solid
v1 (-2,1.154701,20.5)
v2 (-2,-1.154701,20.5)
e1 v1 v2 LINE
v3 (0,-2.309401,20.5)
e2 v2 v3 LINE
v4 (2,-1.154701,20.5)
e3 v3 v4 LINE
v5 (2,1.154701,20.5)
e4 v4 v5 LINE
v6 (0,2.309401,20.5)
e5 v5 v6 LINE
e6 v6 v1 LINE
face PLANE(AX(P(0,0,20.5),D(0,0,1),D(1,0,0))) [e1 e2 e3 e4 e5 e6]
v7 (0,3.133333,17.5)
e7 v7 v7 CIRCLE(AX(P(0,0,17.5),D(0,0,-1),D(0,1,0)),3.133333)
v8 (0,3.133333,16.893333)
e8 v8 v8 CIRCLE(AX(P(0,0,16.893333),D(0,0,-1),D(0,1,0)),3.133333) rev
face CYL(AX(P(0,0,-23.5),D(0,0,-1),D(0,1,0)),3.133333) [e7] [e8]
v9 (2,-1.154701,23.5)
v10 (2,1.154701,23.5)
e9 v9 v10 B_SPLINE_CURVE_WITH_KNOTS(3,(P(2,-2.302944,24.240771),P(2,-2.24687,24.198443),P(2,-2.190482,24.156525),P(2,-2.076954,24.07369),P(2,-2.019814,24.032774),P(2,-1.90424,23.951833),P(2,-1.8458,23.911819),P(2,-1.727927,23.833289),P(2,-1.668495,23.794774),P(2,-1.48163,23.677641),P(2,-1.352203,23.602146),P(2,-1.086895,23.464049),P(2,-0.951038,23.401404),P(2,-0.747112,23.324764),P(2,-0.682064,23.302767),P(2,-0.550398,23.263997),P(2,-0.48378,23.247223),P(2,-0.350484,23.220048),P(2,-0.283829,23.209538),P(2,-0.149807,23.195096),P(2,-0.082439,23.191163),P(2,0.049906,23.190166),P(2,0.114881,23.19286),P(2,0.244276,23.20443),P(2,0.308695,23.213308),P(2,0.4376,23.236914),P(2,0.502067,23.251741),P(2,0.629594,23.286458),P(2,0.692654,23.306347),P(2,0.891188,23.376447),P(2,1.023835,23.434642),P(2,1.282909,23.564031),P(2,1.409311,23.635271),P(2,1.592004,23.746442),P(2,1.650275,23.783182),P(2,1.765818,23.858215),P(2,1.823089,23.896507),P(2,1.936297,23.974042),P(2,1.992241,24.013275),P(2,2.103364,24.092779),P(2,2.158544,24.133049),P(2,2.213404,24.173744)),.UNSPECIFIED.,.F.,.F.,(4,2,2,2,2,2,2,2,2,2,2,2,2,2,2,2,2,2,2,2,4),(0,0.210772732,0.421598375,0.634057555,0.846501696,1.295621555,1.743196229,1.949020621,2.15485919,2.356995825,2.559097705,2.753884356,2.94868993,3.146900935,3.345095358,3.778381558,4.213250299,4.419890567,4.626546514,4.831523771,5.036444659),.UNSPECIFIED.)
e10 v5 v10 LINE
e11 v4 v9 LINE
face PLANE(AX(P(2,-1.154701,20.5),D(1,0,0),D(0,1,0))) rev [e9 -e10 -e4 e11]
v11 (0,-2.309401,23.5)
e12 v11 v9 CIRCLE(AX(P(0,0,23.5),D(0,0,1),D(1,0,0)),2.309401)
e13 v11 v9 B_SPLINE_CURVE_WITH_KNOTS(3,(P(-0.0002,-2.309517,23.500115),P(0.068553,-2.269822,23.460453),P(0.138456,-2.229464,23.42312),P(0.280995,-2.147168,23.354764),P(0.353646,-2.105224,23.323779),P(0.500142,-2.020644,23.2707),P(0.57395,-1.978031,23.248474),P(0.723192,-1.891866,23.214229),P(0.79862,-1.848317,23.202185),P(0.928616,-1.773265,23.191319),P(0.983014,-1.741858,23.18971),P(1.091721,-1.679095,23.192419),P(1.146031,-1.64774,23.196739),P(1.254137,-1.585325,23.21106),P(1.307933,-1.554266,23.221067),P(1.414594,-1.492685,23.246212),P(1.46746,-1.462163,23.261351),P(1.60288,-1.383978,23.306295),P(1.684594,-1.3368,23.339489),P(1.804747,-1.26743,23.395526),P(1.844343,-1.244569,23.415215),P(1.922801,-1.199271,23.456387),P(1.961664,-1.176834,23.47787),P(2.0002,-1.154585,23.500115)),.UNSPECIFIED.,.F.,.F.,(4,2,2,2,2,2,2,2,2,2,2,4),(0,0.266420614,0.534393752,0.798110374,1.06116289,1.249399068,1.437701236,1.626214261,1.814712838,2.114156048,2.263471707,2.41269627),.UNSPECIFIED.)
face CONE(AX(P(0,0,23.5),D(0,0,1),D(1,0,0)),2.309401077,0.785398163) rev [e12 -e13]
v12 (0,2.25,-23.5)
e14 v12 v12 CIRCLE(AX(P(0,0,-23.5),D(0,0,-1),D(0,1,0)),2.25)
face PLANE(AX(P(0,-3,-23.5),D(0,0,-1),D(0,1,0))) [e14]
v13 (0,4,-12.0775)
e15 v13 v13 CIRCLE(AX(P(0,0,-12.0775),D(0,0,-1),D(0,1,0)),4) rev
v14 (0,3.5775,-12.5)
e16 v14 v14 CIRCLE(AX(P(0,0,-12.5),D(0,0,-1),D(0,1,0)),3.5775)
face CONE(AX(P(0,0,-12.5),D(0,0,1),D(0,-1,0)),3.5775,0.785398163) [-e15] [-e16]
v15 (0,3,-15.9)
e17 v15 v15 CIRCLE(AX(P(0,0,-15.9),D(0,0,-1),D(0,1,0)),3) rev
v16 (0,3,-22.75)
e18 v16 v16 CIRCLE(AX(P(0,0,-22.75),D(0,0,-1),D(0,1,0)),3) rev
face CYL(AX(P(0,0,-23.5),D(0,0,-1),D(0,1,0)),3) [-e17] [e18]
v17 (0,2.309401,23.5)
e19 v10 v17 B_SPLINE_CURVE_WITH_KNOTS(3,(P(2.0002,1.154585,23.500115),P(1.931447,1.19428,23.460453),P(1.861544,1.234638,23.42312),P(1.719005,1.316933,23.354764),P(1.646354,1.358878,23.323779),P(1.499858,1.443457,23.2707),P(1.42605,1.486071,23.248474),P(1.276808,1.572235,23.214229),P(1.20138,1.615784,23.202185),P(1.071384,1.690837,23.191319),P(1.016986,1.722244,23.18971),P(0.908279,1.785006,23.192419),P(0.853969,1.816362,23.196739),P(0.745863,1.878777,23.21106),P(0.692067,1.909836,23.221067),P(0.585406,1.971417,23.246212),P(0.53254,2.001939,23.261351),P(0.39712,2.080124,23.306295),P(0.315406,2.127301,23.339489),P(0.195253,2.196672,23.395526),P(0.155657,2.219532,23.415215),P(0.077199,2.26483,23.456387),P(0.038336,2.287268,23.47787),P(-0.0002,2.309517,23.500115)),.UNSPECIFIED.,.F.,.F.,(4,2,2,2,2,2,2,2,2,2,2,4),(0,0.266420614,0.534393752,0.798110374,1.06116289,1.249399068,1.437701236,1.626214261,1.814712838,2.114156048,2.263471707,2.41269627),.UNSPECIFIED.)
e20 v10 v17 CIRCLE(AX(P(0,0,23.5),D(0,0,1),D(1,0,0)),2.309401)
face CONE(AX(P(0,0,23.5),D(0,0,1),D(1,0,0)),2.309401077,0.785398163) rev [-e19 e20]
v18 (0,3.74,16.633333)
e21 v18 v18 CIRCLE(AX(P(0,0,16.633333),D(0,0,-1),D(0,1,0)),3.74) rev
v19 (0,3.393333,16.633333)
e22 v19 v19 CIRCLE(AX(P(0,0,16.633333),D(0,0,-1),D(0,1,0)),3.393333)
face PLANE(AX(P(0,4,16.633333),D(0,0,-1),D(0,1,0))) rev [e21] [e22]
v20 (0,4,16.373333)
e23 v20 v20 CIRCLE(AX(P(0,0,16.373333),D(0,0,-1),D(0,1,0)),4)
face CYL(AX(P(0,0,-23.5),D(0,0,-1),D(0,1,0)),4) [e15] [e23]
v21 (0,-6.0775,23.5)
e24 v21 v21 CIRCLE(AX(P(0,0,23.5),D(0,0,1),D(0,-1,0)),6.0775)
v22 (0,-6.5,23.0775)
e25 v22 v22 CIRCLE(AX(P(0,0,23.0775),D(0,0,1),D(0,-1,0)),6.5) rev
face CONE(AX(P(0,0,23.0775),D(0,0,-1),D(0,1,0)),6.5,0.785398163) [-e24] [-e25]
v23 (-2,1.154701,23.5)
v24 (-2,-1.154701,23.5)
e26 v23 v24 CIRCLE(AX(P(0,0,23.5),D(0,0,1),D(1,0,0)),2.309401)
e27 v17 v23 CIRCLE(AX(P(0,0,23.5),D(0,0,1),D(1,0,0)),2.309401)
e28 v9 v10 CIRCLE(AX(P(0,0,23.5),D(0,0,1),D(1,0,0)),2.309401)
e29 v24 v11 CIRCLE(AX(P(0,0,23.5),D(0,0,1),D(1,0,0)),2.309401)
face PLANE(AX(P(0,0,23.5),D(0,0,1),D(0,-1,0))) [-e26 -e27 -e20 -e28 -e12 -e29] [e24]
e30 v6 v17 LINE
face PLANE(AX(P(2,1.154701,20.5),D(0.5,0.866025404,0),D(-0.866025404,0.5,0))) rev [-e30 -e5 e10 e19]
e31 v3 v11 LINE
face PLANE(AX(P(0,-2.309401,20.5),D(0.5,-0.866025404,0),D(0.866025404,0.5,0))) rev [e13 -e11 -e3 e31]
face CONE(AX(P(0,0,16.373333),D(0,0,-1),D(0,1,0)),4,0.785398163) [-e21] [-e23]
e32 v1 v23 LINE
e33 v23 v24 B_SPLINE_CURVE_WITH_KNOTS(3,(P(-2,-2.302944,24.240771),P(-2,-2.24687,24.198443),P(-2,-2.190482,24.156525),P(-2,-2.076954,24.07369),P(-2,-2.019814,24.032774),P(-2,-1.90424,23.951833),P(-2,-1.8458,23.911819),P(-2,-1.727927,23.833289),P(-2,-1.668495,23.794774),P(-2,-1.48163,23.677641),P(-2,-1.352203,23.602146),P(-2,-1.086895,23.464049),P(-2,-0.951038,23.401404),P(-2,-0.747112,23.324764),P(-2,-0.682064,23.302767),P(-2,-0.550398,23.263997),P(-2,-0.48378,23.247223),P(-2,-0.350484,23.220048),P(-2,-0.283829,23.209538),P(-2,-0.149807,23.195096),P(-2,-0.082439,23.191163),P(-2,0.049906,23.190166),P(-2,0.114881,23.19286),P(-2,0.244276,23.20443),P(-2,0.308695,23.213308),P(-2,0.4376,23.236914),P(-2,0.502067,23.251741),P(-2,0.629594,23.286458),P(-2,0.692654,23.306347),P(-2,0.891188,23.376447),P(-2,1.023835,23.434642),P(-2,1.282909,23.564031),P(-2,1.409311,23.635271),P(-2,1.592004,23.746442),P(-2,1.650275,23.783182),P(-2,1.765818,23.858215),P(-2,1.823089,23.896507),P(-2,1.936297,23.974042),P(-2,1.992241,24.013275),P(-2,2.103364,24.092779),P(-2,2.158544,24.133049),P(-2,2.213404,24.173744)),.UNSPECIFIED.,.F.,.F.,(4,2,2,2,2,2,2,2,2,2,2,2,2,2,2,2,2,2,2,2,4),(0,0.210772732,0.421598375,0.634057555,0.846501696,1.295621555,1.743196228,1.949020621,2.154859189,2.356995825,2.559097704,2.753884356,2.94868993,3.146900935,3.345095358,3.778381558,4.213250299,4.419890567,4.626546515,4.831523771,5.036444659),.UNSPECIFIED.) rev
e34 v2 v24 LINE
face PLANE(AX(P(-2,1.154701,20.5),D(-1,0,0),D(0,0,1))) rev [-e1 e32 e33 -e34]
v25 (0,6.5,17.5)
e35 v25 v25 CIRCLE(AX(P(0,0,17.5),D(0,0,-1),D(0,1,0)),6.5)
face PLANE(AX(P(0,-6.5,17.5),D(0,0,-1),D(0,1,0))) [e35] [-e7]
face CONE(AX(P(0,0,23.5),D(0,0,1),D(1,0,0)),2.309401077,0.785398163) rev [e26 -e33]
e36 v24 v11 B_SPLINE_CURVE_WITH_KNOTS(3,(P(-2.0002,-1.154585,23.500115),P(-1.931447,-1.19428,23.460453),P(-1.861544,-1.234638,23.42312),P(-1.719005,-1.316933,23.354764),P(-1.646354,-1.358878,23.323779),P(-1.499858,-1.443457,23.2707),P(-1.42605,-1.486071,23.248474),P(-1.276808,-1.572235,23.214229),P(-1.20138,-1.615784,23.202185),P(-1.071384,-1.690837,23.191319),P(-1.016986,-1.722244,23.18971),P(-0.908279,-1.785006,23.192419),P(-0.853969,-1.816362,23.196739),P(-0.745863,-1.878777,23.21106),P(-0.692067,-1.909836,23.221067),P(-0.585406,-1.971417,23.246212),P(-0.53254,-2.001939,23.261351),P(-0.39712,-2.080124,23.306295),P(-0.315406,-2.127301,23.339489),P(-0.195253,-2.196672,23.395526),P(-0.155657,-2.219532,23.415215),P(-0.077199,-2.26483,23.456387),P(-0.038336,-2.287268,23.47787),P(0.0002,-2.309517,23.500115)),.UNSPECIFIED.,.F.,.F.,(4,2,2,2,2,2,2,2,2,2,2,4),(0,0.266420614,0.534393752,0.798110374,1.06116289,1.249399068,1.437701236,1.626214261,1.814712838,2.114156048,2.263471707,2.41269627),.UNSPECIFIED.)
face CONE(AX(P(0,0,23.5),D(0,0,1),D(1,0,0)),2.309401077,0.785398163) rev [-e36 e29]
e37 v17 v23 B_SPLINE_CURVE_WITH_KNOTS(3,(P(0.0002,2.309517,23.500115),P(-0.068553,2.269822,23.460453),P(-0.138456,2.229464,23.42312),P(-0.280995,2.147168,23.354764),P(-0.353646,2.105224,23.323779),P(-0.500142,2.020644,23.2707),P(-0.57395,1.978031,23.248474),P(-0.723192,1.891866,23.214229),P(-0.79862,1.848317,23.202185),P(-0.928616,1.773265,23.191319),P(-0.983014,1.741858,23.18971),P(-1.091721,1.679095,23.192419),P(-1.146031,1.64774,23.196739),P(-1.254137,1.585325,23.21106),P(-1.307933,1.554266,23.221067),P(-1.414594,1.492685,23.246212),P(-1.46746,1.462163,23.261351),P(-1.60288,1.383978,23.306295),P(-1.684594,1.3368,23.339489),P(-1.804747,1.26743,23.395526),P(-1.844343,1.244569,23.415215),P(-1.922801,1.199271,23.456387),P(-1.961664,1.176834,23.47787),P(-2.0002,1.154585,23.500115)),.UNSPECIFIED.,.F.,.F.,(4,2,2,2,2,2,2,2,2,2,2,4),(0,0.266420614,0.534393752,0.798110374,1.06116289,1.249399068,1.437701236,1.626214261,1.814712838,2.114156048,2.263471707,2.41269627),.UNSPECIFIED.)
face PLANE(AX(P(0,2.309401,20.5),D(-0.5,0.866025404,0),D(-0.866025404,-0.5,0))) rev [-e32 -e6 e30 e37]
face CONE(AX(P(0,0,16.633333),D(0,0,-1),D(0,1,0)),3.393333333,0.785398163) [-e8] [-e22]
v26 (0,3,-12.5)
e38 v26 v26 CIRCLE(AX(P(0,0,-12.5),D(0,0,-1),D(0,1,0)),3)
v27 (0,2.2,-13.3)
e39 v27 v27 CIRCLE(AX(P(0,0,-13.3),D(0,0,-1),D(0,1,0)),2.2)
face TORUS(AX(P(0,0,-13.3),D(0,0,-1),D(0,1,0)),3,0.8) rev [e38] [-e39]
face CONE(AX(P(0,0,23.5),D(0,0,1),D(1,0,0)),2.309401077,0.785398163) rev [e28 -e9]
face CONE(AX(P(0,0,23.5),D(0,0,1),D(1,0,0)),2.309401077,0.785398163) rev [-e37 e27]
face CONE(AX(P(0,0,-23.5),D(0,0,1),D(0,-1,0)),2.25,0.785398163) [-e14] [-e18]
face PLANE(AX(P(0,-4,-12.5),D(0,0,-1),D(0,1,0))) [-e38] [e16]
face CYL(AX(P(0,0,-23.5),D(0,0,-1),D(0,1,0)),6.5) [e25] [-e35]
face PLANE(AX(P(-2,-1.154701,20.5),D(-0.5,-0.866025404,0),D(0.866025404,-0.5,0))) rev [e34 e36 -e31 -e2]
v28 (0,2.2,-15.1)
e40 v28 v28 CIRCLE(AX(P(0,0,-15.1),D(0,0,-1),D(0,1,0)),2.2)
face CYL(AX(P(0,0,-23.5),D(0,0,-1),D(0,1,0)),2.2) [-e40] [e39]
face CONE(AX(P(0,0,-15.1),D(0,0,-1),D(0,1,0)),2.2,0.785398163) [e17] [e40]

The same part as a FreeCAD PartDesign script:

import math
import FreeCAD as App
import Part
import Sketcher
Q = App.Units.Quantity


def edges_at(feature, points):
    """Names of the edges that pass closest to the given points."""
    edges = feature.Shape.Edges
    near = lambda p: min(range(len(edges)), key=lambda i: edges[i].distToShape(Part.Vertex(*p))[0])
    return sorted({f"Edge{near(p) + 1}" for p in points})

doc = App.newDocument("Part")
body = doc.addObject("PartDesign::Body", "Body")

sketch1 = body.newObject("Sketcher::SketchObject", "Sketch")
sketch1.AttachmentSupport = (doc.getObject("YZ_Plane"), [""])
sketch1.MapMode = "FlatFace"
sketch1.addGeometry([
    Part.LineSegment(App.Vector(6.5, 17.5, 0), App.Vector(6.5, 23.5, 0)),
    Part.LineSegment(App.Vector(6.5, 23.5, 0), App.Vector(0, 23.5, 0)),
    Part.LineSegment(App.Vector(0, 23.5, 0), App.Vector(0, -23.5, 0)),
    Part.LineSegment(App.Vector(0, -23.5, 0), App.Vector(3, -23.5, 0)),
    Part.LineSegment(App.Vector(3, -23.5, 0), App.Vector(3, -12.5, 0)),
    Part.LineSegment(App.Vector(3, -12.5, 0), App.Vector(4, -12.5, 0)),
    Part.LineSegment(App.Vector(4, -12.5, 0), App.Vector(4, 17.5, 0)),
    Part.LineSegment(App.Vector(4, 17.5, 0), App.Vector(6.5, 17.5, 0)),
], False)
sketch1.addConstraint([
    Sketcher.Constraint("Coincident", 0, 2, 1, 1),
    Sketcher.Constraint("Coincident", 1, 2, 2, 1),
    Sketcher.Constraint("Coincident", 2, 2, 3, 1),
    Sketcher.Constraint("Coincident", 3, 2, 4, 1),
    Sketcher.Constraint("Coincident", 4, 2, 5, 1),
    Sketcher.Constraint("Coincident", 5, 2, 6, 1),
    Sketcher.Constraint("Coincident", 6, 2, 7, 1),
    Sketcher.Constraint("Coincident", 7, 2, 0, 1),
    Sketcher.Constraint("Vertical", 0),
    Sketcher.Constraint("Horizontal", 1),
    Sketcher.Constraint("Vertical", 2),
    Sketcher.Constraint("Horizontal", 3),
    Sketcher.Constraint("Vertical", 4),
    Sketcher.Constraint("Horizontal", 5),
    Sketcher.Constraint("Vertical", 6),
    Sketcher.Constraint("Horizontal", 7),
    Sketcher.Constraint("Symmetric", 1, 2, 2, 2, -1, 1),
    Sketcher.Constraint("DistanceX", 3, 1, 3, 2, 3.0),
    Sketcher.Constraint("DistanceX", 5, 1, 5, 2, 1.0),
    Sketcher.Constraint("DistanceY", 0, 1, 0, 2, 6.0),
    Sketcher.Constraint("DistanceY", 2, 2, 2, 1, 47.0),
    Sketcher.Constraint("DistanceY", 4, 1, 4, 2, 11.0),
    Sketcher.Constraint("DistanceX", 1, 2, 1, 1, 6.5),
])
revolution = body.newObject("PartDesign::Revolution", "Revolution")
revolution.Profile = sketch1
revolution.ReferenceAxis = (sketch1, ["V_Axis"])
revolution.Angle = 360

sketch2 = body.newObject("Sketcher::SketchObject", "Sketch001")
sketch2.AttachmentSupport = (doc.getObject("YZ_Plane"), [""])
sketch2.MapMode = "FlatFace"
sketch2.addGeometry([
    Part.LineSegment(App.Vector(4, 17.5, 0), App.Vector(3.1, 17.5, 0)),
    Part.LineSegment(App.Vector(3.1, 17.5, 0), App.Vector(3.1, 16.6, 0)),
    Part.LineSegment(App.Vector(3.1, 16.6, 0), App.Vector(4, 16.6, 0)),
    Part.LineSegment(App.Vector(4, 16.6, 0), App.Vector(4, 17.5, 0)),
], False)
sketch2.addConstraint([
    Sketcher.Constraint("Coincident", 0, 2, 1, 1),
    Sketcher.Constraint("Coincident", 1, 2, 2, 1),
    Sketcher.Constraint("Coincident", 2, 2, 3, 1),
    Sketcher.Constraint("Coincident", 3, 2, 0, 1),
    Sketcher.Constraint("Horizontal", 0),
    Sketcher.Constraint("Vertical", 1),
    Sketcher.Constraint("Horizontal", 2),
    Sketcher.Constraint("Vertical", 3),
    Sketcher.Constraint("Equal", 2, 1),
    Sketcher.Constraint("DistanceX", -1, 1, 2, 2, 4.0),
    Sketcher.Constraint("DistanceY", -1, 1, 0, 2, 17.5),
    Sketcher.Constraint("DistanceX", 0, 2, 0, 1, 0.866667),
])
groove = body.newObject("PartDesign::Groove", "Groove")
groove.Profile = sketch2
groove.ReferenceAxis = (sketch2, ["V_Axis"])
groove.Angle = 360
doc.recompute()

chamfer = body.newObject("PartDesign::Chamfer", "Chamfer")
chamfer.Base = (groove, edges_at(groove, [(0, -3.133, 16.633), (0, -4, 16.633)]))
chamfer.Size = 0.26

sketch3 = body.newObject("Sketcher::SketchObject", "Sketch002")
sketch3.AttachmentSupport = (doc.getObject("YZ_Plane"), [""])
sketch3.MapMode = "FlatFace"
sketch3.addGeometry([
    Part.LineSegment(App.Vector(4, -16.9, 0), App.Vector(4, -12.5, 0)),
    Part.LineSegment(App.Vector(4, -12.5, 0), App.Vector(3, -12.5, 0)),
    Part.ArcOfCircle(Part.Circle(App.Vector(3, -13.3, 0), App.Vector(0, 0, 1), 0.8), math.radians(90), math.radians(180)),
    Part.LineSegment(App.Vector(2.2, -13.3, 0), App.Vector(2.2, -15.1, 0)),
    Part.LineSegment(App.Vector(2.2, -15.1, 0), App.Vector(4, -16.9, 0)),
], False)
sketch3.addConstraint([
    Sketcher.Constraint("Coincident", 0, 2, 1, 1),
    Sketcher.Constraint("Tangent", 1, 2, 2, 1),
    Sketcher.Constraint("Tangent", 2, 2, 3, 1),
    Sketcher.Constraint("Coincident", 3, 2, 4, 1),
    Sketcher.Constraint("Coincident", 4, 2, 0, 1),
    Sketcher.Constraint("Vertical", 0),
    Sketcher.Constraint("Horizontal", 1),
    Sketcher.Constraint("Vertical", 3),
    Sketcher.Constraint("Radius", 2, 0.8),
    Sketcher.Constraint("DistanceX", 1, 2, 1, 1, 1.0),
    Sketcher.Constraint("Angle", 4, Q("-45 deg")),
    Sketcher.Constraint("DistanceY", 0, 1, 0, 2, 4.4),
    Sketcher.Constraint("DistanceX", -1, 1, 2, 3, 3.0),
    Sketcher.Constraint("DistanceY", 2, 3, -1, 1, 13.3),
])
groove2 = body.newObject("PartDesign::Groove", "Groove001")
groove2.Profile = sketch3
groove2.ReferenceAxis = (sketch3, ["V_Axis"])
groove2.Angle = 360
doc.recompute()

chamfer2 = body.newObject("PartDesign::Chamfer", "Chamfer001")
chamfer2.Base = (groove2, edges_at(groove2, [(0, -3, -23.5)]))
chamfer2.Size = 0.75
doc.recompute()

chamfer3 = body.newObject("PartDesign::Chamfer", "Chamfer002")
chamfer3.Base = (chamfer2, edges_at(chamfer2, [(0, -4, -12.5), (0, -6.5, 23.5)]))
chamfer3.Size = 0.4225

sketch4 = body.newObject("Sketcher::SketchObject", "Sketch003")
sketch4.AttachmentSupport = (doc.getObject("XY_Plane"), [""])
sketch4.MapMode = "FlatFace"
sketch4.AttachmentOffset = App.Placement(App.Vector(0, 0, 23.5), App.Rotation())
sketch4.addGeometry([
    Part.LineSegment(App.Vector(2, 1.2, 0), App.Vector(0, 2.3, 0)),
    Part.LineSegment(App.Vector(0, 2.3, 0), App.Vector(-2, 1.2, 0)),
    Part.LineSegment(App.Vector(-2, 1.2, 0), App.Vector(-2, -1.2, 0)),
    Part.LineSegment(App.Vector(-2, -1.2, 0), App.Vector(0, -2.3, 0)),
    Part.LineSegment(App.Vector(0, -2.3, 0), App.Vector(2, -1.2, 0)),
    Part.LineSegment(App.Vector(2, -1.2, 0), App.Vector(2, 1.2, 0)),
], False)
sketch4.addConstraint([
    Sketcher.Constraint("Coincident", 0, 2, 1, 1),
    Sketcher.Constraint("Coincident", 1, 2, 2, 1),
    Sketcher.Constraint("Coincident", 2, 2, 3, 1),
    Sketcher.Constraint("Coincident", 3, 2, 4, 1),
    Sketcher.Constraint("Coincident", 4, 2, 5, 1),
    Sketcher.Constraint("Coincident", 5, 2, 0, 1),
    Sketcher.Constraint("Vertical", 2),
    Sketcher.Constraint("Vertical", 5),
    Sketcher.Constraint("Symmetric", 0, 2, 3, 2, -1, 1),
    Sketcher.Constraint("Symmetric", 1, 2, 4, 2, -1, 1),
    Sketcher.Constraint("PointOnObject", 0, 2, -2),
    Sketcher.Constraint("Parallel", 0, 3),
    Sketcher.Constraint("Horizontal", 2, 2, 4, 2),
    Sketcher.Constraint("Angle", 0, Q("150 deg")),
    Sketcher.Constraint("DistanceX", 1, 2, -1, 1, 2.0),
    Sketcher.Constraint("DistanceY", 2, 2, 2, 1, 2.309401),
])
pocket1 = body.newObject("PartDesign::Pocket", "Pocket")
pocket1.Profile = sketch4
pocket1.Length = 3

sketch5 = body.newObject("Sketcher::SketchObject", "Sketch004")
sketch5.AttachmentSupport = (doc.getObject("YZ_Plane"), [""])
sketch5.MapMode = "FlatFace"
sketch5.addGeometry([
    Part.LineSegment(App.Vector(0, 23.5, 0), App.Vector(-2.3, 23.5, 0)),
    Part.LineSegment(App.Vector(-2.3, 23.5, 0), App.Vector(0, 21.2, 0)),
    Part.LineSegment(App.Vector(0, 21.2, 0), App.Vector(0, 23.5, 0)),
], False)
sketch5.addConstraint([
    Sketcher.Constraint("Coincident", 0, 2, 1, 1),
    Sketcher.Constraint("Coincident", 1, 2, 2, 1),
    Sketcher.Constraint("Coincident", 2, 2, 0, 1),
    Sketcher.Constraint("Horizontal", 0),
    Sketcher.Constraint("Vertical", 2),
    Sketcher.Constraint("PointOnObject", 1, 2, -2),
    Sketcher.Constraint("Equal", 0, 2),
    Sketcher.Constraint("DistanceY", -1, 1, 0, 2, 23.5),
    Sketcher.Constraint("DistanceX", 0, 2, 0, 1, 2.309401),
])
groove3 = body.newObject("PartDesign::Groove", "Groove002")
groove3.Profile = sketch5
groove3.ReferenceAxis = (sketch5, ["V_Axis"])
groove3.Angle = 360

doc.recompute()
